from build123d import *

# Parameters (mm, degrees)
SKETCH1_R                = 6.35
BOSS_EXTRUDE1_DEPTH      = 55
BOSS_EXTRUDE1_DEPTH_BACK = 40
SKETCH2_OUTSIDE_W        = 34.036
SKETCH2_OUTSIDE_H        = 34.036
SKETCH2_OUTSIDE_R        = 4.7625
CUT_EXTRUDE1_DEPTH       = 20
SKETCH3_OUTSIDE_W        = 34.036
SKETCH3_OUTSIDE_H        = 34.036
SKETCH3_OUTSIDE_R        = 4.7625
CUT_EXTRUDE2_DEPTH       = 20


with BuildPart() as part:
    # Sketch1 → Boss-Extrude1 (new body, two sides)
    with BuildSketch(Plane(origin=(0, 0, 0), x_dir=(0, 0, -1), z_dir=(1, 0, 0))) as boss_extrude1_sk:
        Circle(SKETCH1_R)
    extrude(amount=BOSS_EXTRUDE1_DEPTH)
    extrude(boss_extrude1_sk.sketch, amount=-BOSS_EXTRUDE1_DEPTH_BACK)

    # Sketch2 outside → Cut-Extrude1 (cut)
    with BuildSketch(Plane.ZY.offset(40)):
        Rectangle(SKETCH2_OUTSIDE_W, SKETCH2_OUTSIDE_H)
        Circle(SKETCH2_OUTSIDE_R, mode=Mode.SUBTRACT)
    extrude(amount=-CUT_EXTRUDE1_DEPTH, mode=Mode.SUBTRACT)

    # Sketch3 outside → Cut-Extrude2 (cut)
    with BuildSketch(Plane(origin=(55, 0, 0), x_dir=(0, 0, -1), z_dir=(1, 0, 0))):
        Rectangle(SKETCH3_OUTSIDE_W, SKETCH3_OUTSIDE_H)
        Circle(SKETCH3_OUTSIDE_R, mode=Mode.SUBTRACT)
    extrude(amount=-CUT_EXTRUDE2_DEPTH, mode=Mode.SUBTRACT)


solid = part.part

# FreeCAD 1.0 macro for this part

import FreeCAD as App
import Part
import Sketcher
from FreeCAD import Vector
Q = App.Units.Quantity

doc = App.newDocument("Part")
params = doc.addObject("Spreadsheet::Sheet", "Params")
for row, (alias, value) in enumerate([
    ("sketch1_diameter", "0.5 in"),
    ("pad1_length", "55 mm"),
    ("pad1_length2", "40 mm"),
    ("sketch2_diameter", "0.375 in"),
    ("sketch2_width", "1.34 in"),
    ("pocket1_length", "20 mm"),
    ("sketch3_diameter", "0.375 in"),
    ("sketch3_width", "1.34 in"),
    ("pocket2_length", "20 mm"),
], start=1):
    params.set(f"A{row}", alias)
    params.set(f"B{row}", "=" + value)
    params.setAlias(f"B{row}", alias)

body = doc.addObject("PartDesign::Body", "Body")

# Sketch on YZ plane
sketch1 = body.newObject("Sketcher::SketchObject", "Sketch")
sketch1.AttachmentSupport = (doc.getObject("YZ_Plane"), [""])
sketch1.MapMode = "FlatFace"
sketch1.addGeometry(Part.Circle(Vector(0, 0, 0), Vector(0, 0, 1), 6), False)
sketch1.addConstraint(Sketcher.Constraint("Coincident", 0, 3, -1, 1))
sketch1.addConstraint(Sketcher.Constraint("Diameter", 0, Q("0.5 in")))
sketch1.setExpression("Constraints[1]", "Params.sketch1_diameter")
pad1 = body.newObject("PartDesign::Pad", "Pad")
pad1.Profile = sketch1
pad1.Type = "TwoLengths"
pad1.setExpression("Length", "Params.pad1_length")
pad1.setExpression("Length2", "Params.pad1_length2")

# Sketch on YZ plane
sketch2 = body.newObject("Sketcher::SketchObject", "Sketch001")
sketch2.AttachmentSupport = (doc.getObject("YZ_Plane"), [""])
sketch2.MapMode = "FlatFace"
sketch2.AttachmentOffset = App.Placement(Vector(0, 0, -40), App.Rotation())
sketch2.addGeometry(Part.LineSegment(Vector(17, -17, 0), Vector(-17, -17, 0)), False)
sketch2.addGeometry(Part.LineSegment(Vector(-17, -17, 0), Vector(-17, 17, 0)), False)
sketch2.addGeometry(Part.LineSegment(Vector(-17, 17, 0), Vector(17, 17, 0)), False)
sketch2.addGeometry(Part.LineSegment(Vector(17, 17, 0), Vector(17, -17, 0)), False)
sketch2.addGeometry(Part.Circle(Vector(0, 0, 0), Vector(0, 0, 1), 4.8), False)
sketch2.addConstraint(Sketcher.Constraint("Coincident", 0, 2, 1, 1))
sketch2.addConstraint(Sketcher.Constraint("Coincident", 1, 2, 2, 1))
sketch2.addConstraint(Sketcher.Constraint("Coincident", 2, 2, 3, 1))
sketch2.addConstraint(Sketcher.Constraint("Coincident", 3, 2, 0, 1))
sketch2.addConstraint(Sketcher.Constraint("Horizontal", 0))
sketch2.addConstraint(Sketcher.Constraint("Vertical", 1))
sketch2.addConstraint(Sketcher.Constraint("Horizontal", 2))
sketch2.addConstraint(Sketcher.Constraint("Vertical", 3))
sketch2.addConstraint(Sketcher.Constraint("Coincident", 4, 3, -1, 1))
sketch2.addConstraint(Sketcher.Constraint("Symmetric", 0, 2, 2, 2, -1, 1))
sketch2.addConstraint(Sketcher.Constraint("Equal", 2, 1))
sketch2.addConstraint(Sketcher.Constraint("Diameter", 4, Q("0.375 in")))
sketch2.addConstraint(Sketcher.Constraint("DistanceX", 0, 2, 0, 1, Q("1.34 in")))
sketch2.setExpression("Constraints[11]", "Params.sketch2_diameter")
sketch2.setExpression("Constraints[12]", "Params.sketch2_width")
pocket1 = body.newObject("PartDesign::Pocket", "Pocket")
pocket1.Profile = sketch2
pocket1.setExpression("Length", "Params.pocket1_length")
pocket1.Reversed = True

# Sketch on YZ plane
sketch3 = body.newObject("Sketcher::SketchObject", "Sketch002")
sketch3.AttachmentSupport = (doc.getObject("YZ_Plane"), [""])
sketch3.MapMode = "FlatFace"
sketch3.AttachmentOffset = App.Placement(Vector(0, 0, 55), App.Rotation())
sketch3.addGeometry(Part.LineSegment(Vector(17, 17, 0), Vector(-17, 17, 0)), False)
sketch3.addGeometry(Part.LineSegment(Vector(-17, 17, 0), Vector(-17, -17, 0)), False)
sketch3.addGeometry(Part.LineSegment(Vector(-17, -17, 0), Vector(17, -17, 0)), False)
sketch3.addGeometry(Part.LineSegment(Vector(17, -17, 0), Vector(17, 17, 0)), False)
sketch3.addGeometry(Part.Circle(Vector(0, 0, 0), Vector(0, 0, 1), 4.8), False)
sketch3.addConstraint(Sketcher.Constraint("Coincident", 0, 2, 1, 1))
sketch3.addConstraint(Sketcher.Constraint("Coincident", 1, 2, 2, 1))
sketch3.addConstraint(Sketcher.Constraint("Coincident", 2, 2, 3, 1))
sketch3.addConstraint(Sketcher.Constraint("Coincident", 3, 2, 0, 1))
sketch3.addConstraint(Sketcher.Constraint("Horizontal", 0))
sketch3.addConstraint(Sketcher.Constraint("Vertical", 1))
sketch3.addConstraint(Sketcher.Constraint("Horizontal", 2))
sketch3.addConstraint(Sketcher.Constraint("Vertical", 3))
sketch3.addConstraint(Sketcher.Constraint("Coincident", 4, 3, -1, 1))
sketch3.addConstraint(Sketcher.Constraint("Symmetric", 0, 2, 2, 2, -1, 1))
sketch3.addConstraint(Sketcher.Constraint("Equal", 2, 1))
sketch3.addConstraint(Sketcher.Constraint("Diameter", 4, Q("0.375 in")))
sketch3.addConstraint(Sketcher.Constraint("DistanceX", 0, 2, 0, 1, Q("1.34 in")))
sketch3.setExpression("Constraints[11]", "Params.sketch3_diameter")
sketch3.setExpression("Constraints[12]", "Params.sketch3_width")
pocket2 = body.newObject("PartDesign::Pocket", "Pocket001")
pocket2.Profile = sketch3
pocket2.setExpression("Length", "Params.pocket2_length")

doc.recompute()
